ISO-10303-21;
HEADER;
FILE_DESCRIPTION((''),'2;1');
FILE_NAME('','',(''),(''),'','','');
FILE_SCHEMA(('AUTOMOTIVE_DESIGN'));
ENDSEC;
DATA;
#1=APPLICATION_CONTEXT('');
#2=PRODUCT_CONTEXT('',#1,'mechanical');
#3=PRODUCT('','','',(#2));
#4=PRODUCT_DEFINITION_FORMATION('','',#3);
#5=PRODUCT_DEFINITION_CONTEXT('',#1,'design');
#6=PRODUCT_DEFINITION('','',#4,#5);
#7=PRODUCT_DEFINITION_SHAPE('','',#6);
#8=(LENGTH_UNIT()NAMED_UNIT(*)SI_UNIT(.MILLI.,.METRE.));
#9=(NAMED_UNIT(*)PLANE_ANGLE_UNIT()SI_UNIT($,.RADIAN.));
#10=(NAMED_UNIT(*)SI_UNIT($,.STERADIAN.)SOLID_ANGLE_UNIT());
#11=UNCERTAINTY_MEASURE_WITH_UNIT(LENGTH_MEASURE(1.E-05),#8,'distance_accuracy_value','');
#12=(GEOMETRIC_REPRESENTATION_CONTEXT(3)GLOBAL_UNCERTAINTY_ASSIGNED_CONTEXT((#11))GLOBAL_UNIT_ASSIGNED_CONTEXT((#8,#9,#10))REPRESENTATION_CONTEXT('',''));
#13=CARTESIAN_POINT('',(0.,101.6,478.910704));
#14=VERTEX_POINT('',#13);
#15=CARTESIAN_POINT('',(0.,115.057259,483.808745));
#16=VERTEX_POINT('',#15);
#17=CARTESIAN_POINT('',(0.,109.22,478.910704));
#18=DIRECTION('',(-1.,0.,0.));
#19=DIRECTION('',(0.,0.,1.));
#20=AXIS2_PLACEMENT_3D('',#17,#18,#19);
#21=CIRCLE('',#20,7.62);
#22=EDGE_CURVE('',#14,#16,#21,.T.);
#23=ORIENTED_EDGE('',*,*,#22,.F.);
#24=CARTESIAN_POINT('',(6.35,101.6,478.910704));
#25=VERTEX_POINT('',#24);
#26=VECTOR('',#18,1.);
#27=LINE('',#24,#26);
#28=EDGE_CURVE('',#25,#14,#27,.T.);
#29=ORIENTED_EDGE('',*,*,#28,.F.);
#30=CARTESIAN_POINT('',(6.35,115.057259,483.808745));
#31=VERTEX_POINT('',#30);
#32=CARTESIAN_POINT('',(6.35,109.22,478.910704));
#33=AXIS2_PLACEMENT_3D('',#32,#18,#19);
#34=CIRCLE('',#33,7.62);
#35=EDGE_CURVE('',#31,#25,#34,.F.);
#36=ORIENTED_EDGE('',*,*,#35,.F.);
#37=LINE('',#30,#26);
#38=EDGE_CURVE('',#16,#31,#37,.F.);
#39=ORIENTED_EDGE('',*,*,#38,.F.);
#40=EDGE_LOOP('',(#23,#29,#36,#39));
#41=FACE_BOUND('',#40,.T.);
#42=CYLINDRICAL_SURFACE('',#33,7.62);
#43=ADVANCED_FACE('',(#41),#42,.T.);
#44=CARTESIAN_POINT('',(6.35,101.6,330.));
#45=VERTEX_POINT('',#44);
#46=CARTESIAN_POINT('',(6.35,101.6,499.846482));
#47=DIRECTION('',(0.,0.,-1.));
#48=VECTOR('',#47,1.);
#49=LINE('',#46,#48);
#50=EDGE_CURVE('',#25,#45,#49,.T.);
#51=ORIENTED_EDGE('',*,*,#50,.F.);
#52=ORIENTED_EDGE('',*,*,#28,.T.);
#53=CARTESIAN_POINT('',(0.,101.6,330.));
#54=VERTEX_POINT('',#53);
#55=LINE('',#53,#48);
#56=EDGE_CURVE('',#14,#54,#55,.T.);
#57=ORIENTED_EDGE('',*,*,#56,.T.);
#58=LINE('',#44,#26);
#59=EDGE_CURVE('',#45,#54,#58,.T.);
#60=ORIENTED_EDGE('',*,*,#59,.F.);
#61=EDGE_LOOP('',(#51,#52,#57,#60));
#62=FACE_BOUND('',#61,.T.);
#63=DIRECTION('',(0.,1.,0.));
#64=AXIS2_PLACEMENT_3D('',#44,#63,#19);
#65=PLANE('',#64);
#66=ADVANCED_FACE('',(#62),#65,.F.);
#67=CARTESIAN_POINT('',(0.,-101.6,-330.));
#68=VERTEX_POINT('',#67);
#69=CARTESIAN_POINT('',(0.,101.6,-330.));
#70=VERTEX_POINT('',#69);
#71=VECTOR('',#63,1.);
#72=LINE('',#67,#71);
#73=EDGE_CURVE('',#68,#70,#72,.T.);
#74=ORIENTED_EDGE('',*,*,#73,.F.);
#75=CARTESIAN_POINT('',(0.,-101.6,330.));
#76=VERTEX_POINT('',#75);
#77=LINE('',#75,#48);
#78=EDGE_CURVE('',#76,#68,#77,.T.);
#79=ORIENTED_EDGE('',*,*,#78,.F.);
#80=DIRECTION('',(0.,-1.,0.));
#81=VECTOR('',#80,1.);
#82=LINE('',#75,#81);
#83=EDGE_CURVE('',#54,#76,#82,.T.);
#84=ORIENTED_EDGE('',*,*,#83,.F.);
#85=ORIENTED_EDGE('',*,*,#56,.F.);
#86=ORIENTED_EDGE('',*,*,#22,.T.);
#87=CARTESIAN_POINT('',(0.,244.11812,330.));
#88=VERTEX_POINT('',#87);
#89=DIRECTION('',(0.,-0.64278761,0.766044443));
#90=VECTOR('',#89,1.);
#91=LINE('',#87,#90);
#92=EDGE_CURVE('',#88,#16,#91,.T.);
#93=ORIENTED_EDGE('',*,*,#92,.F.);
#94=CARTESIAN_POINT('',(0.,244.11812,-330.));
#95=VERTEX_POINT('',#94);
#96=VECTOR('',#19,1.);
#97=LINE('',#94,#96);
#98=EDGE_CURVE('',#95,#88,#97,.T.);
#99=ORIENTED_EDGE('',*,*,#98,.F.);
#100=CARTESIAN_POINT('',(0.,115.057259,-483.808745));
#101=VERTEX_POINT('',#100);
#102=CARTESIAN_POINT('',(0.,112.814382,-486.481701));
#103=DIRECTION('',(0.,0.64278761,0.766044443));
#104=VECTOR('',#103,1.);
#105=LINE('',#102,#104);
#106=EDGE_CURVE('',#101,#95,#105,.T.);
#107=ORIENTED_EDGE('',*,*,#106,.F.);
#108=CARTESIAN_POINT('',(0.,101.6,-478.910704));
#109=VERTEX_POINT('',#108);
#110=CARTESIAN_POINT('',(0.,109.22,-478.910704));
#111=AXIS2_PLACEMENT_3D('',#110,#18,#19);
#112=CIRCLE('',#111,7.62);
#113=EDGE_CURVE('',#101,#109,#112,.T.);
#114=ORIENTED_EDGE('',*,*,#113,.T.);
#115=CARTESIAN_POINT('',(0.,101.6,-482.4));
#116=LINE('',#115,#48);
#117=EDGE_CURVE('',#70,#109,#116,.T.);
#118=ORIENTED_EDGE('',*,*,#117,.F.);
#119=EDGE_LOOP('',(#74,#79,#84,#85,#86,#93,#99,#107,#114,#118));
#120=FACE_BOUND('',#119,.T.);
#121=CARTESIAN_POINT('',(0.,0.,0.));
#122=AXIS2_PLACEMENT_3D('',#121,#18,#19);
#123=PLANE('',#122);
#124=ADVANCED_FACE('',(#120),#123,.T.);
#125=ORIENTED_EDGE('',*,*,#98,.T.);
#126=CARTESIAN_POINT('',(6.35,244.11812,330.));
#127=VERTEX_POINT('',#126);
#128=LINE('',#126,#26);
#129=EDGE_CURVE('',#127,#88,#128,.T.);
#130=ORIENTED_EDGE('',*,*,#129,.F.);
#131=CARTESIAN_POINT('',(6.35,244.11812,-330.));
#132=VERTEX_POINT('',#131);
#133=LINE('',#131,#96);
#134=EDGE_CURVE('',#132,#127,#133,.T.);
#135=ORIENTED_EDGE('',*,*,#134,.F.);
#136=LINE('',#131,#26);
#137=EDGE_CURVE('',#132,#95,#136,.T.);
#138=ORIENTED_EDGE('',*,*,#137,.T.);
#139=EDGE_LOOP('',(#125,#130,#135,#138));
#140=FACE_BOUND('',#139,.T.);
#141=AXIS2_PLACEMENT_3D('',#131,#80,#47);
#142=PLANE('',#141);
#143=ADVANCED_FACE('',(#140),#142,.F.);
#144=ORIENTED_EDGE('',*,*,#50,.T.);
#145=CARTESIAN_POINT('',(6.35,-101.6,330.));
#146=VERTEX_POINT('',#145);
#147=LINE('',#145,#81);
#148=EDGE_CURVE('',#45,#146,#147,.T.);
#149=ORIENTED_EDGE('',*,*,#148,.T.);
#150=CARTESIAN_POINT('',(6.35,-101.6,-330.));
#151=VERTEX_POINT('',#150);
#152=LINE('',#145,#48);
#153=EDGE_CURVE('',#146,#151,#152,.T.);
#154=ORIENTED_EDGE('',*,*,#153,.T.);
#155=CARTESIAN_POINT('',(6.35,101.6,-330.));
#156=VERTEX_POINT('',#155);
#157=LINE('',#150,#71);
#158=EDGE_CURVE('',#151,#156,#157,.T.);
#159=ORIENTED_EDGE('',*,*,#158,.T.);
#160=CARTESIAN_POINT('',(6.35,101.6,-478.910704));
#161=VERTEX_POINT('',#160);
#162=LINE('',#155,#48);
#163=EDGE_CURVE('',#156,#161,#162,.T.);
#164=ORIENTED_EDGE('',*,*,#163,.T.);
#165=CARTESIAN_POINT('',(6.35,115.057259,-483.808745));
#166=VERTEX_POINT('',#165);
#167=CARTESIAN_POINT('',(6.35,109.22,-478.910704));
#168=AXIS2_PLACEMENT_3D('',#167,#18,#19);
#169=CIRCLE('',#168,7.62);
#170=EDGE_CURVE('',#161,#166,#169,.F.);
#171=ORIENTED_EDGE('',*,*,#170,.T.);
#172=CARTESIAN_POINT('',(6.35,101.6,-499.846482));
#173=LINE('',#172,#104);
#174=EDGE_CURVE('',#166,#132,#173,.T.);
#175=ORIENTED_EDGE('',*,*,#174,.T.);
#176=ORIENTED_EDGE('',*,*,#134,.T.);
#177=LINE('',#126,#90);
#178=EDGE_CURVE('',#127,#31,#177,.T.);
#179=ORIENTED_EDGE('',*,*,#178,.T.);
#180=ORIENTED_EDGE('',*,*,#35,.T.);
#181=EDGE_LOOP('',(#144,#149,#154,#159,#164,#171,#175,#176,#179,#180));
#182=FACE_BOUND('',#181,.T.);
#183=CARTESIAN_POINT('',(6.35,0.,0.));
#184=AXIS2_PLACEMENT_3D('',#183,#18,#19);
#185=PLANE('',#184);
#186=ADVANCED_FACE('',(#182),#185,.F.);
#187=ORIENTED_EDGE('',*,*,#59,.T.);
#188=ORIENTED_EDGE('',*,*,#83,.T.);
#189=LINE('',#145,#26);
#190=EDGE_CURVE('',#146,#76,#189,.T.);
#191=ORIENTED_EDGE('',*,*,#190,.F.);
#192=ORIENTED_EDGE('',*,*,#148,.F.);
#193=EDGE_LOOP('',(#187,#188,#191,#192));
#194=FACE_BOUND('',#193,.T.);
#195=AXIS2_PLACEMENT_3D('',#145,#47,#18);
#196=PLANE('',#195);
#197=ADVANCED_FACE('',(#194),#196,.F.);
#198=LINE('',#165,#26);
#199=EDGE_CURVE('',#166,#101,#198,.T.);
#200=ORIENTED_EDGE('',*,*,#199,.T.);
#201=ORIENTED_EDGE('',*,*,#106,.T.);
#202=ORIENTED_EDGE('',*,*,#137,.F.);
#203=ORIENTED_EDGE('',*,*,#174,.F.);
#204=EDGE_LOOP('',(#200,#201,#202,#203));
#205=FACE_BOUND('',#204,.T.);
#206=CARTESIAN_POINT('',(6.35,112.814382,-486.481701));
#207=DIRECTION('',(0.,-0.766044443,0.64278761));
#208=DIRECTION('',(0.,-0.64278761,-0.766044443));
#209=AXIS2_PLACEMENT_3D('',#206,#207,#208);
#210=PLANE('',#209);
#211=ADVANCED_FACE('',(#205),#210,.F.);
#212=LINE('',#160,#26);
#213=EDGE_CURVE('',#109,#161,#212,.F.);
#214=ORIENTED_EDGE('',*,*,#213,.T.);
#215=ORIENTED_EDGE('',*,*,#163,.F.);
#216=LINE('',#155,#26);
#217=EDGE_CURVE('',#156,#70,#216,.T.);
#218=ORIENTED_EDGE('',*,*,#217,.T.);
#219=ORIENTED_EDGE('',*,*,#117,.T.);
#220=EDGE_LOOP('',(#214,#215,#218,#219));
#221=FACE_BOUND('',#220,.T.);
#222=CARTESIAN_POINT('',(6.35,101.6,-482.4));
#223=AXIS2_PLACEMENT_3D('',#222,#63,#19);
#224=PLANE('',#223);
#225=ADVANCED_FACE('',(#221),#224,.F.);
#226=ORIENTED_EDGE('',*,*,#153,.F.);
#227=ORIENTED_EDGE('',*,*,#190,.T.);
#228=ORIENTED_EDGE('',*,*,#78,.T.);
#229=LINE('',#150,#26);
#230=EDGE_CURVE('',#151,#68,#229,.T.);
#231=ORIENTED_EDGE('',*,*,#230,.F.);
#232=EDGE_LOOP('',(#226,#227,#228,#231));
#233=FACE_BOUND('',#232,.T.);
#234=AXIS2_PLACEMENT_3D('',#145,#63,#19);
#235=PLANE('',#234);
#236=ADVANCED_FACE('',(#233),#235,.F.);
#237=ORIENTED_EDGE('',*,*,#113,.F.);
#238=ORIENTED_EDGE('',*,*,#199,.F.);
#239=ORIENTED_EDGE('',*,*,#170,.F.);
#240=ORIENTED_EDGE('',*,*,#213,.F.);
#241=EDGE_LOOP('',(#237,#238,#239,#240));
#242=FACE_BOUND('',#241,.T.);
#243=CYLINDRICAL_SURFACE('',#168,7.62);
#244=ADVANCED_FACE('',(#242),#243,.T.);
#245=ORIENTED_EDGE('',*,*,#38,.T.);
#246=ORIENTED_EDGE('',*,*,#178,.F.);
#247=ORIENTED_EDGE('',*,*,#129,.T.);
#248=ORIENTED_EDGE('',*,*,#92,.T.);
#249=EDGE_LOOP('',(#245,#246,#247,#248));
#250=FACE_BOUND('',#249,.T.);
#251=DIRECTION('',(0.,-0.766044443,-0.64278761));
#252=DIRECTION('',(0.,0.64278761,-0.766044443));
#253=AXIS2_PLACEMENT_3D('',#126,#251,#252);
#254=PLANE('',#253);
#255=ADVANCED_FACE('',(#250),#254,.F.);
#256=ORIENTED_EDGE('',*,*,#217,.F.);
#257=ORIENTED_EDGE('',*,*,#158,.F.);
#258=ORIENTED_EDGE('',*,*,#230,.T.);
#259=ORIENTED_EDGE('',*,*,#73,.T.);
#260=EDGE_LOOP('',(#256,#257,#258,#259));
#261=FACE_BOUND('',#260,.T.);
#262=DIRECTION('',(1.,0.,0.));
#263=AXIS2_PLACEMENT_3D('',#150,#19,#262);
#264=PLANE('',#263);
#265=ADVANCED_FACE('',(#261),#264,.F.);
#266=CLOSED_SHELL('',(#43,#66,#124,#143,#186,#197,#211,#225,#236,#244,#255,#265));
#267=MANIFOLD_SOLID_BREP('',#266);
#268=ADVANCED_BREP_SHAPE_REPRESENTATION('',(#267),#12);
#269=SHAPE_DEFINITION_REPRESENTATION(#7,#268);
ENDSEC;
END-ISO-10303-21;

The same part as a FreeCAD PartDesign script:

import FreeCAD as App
import Part
import Sketcher

V = App.Vector
Q = App.Units.Quantity


def edges_at(feature, points):
    """Names of the edges that pass closest to the given points."""
    edges = feature.Shape.Edges
    near = lambda p: min(range(len(edges)), key=lambda i: edges[i].distToShape(Part.Vertex(*p))[0])
    return sorted({f"Edge{near(p) + 1}" for p in points})

doc = App.newDocument("Part")
body = doc.addObject("PartDesign::Body", "Body")

sketch1 = body.newObject("Sketcher::SketchObject", "Sketch")
sketch1.AttachmentSupport = (doc.getObject("YZ_Plane"), [""])
sketch1.MapMode = "FlatFace"
sketch1.addGeometry([
    Part.LineSegment(V(102, -330, 0), V(102, -500, 0)),
    Part.LineSegment(V(102, -500, 0), V(113, -486, 0)),
    Part.LineSegment(V(113, -486, 0), V(244, -330, 0)),
    Part.LineSegment(V(244, -330, 0), V(244, 330, 0)),
    Part.LineSegment(V(244, 330, 0), V(102, 500, 0)),
    Part.LineSegment(V(102, 500, 0), V(102, 330, 0)),
    Part.LineSegment(V(102, 330, 0), V(-102, 330, 0)),
    Part.LineSegment(V(-102, 330, 0), V(-102, -330, 0)),
    Part.LineSegment(V(-102, -330, 0), V(102, -330, 0)),
], False)
sketch1.addConstraint([
    Sketcher.Constraint("Coincident", 0, 2, 1, 1),
    Sketcher.Constraint("Coincident", 1, 2, 2, 1),
    Sketcher.Constraint("Coincident", 2, 2, 3, 1),
    Sketcher.Constraint("Coincident", 3, 2, 4, 1),
    Sketcher.Constraint("Coincident", 4, 2, 5, 1),
    Sketcher.Constraint("Coincident", 5, 2, 6, 1),
    Sketcher.Constraint("Coincident", 6, 2, 7, 1),
    Sketcher.Constraint("Coincident", 7, 2, 8, 1),
    Sketcher.Constraint("Coincident", 8, 2, 0, 1),
    Sketcher.Constraint("Vertical", 0),
    Sketcher.Constraint("Vertical", 3),
    Sketcher.Constraint("Vertical", 5),
    Sketcher.Constraint("Horizontal", 6),
    Sketcher.Constraint("Vertical", 7),
    Sketcher.Constraint("Horizontal", 8),
    Sketcher.Constraint("Symmetric", 5, 2, 7, 2, -1, 1),
    Sketcher.Constraint("Symmetric", 0, 2, 4, 2, -1),
    Sketcher.Constraint("Parallel", 1, 2),
    Sketcher.Constraint("Horizontal", 3, 2, 5, 2),
    Sketcher.Constraint("Horizontal", 2, 2, 7, 2),
    Sketcher.Constraint("DistanceX", 6, 2, 6, 1, Q("8 in")),
    Sketcher.Constraint("Angle", 1, Q("50 deg")),
    Sketcher.Constraint("DistanceY", 3, 1, 3, 2, 660.0),
    Sketcher.Constraint("DistanceY", 0, 2, 0, 1, 169.846482),
    Sketcher.Constraint("DistanceY", 1, 2, -1, 1, 486.481701),
])
pad1 = body.newObject("PartDesign::Pad", "Pad")
pad1.Profile = sketch1
pad1.Length = Q("0.25 in")
doc.recompute()

fillet = body.newObject("PartDesign::Fillet", "Fillet")
fillet.Base = (pad1, edges_at(pad1, [(3.175, 101.6, 499.846), (3.175, 101.6, -499.846)]))
fillet.Radius = Q("0.3 in")

doc.recompute()
